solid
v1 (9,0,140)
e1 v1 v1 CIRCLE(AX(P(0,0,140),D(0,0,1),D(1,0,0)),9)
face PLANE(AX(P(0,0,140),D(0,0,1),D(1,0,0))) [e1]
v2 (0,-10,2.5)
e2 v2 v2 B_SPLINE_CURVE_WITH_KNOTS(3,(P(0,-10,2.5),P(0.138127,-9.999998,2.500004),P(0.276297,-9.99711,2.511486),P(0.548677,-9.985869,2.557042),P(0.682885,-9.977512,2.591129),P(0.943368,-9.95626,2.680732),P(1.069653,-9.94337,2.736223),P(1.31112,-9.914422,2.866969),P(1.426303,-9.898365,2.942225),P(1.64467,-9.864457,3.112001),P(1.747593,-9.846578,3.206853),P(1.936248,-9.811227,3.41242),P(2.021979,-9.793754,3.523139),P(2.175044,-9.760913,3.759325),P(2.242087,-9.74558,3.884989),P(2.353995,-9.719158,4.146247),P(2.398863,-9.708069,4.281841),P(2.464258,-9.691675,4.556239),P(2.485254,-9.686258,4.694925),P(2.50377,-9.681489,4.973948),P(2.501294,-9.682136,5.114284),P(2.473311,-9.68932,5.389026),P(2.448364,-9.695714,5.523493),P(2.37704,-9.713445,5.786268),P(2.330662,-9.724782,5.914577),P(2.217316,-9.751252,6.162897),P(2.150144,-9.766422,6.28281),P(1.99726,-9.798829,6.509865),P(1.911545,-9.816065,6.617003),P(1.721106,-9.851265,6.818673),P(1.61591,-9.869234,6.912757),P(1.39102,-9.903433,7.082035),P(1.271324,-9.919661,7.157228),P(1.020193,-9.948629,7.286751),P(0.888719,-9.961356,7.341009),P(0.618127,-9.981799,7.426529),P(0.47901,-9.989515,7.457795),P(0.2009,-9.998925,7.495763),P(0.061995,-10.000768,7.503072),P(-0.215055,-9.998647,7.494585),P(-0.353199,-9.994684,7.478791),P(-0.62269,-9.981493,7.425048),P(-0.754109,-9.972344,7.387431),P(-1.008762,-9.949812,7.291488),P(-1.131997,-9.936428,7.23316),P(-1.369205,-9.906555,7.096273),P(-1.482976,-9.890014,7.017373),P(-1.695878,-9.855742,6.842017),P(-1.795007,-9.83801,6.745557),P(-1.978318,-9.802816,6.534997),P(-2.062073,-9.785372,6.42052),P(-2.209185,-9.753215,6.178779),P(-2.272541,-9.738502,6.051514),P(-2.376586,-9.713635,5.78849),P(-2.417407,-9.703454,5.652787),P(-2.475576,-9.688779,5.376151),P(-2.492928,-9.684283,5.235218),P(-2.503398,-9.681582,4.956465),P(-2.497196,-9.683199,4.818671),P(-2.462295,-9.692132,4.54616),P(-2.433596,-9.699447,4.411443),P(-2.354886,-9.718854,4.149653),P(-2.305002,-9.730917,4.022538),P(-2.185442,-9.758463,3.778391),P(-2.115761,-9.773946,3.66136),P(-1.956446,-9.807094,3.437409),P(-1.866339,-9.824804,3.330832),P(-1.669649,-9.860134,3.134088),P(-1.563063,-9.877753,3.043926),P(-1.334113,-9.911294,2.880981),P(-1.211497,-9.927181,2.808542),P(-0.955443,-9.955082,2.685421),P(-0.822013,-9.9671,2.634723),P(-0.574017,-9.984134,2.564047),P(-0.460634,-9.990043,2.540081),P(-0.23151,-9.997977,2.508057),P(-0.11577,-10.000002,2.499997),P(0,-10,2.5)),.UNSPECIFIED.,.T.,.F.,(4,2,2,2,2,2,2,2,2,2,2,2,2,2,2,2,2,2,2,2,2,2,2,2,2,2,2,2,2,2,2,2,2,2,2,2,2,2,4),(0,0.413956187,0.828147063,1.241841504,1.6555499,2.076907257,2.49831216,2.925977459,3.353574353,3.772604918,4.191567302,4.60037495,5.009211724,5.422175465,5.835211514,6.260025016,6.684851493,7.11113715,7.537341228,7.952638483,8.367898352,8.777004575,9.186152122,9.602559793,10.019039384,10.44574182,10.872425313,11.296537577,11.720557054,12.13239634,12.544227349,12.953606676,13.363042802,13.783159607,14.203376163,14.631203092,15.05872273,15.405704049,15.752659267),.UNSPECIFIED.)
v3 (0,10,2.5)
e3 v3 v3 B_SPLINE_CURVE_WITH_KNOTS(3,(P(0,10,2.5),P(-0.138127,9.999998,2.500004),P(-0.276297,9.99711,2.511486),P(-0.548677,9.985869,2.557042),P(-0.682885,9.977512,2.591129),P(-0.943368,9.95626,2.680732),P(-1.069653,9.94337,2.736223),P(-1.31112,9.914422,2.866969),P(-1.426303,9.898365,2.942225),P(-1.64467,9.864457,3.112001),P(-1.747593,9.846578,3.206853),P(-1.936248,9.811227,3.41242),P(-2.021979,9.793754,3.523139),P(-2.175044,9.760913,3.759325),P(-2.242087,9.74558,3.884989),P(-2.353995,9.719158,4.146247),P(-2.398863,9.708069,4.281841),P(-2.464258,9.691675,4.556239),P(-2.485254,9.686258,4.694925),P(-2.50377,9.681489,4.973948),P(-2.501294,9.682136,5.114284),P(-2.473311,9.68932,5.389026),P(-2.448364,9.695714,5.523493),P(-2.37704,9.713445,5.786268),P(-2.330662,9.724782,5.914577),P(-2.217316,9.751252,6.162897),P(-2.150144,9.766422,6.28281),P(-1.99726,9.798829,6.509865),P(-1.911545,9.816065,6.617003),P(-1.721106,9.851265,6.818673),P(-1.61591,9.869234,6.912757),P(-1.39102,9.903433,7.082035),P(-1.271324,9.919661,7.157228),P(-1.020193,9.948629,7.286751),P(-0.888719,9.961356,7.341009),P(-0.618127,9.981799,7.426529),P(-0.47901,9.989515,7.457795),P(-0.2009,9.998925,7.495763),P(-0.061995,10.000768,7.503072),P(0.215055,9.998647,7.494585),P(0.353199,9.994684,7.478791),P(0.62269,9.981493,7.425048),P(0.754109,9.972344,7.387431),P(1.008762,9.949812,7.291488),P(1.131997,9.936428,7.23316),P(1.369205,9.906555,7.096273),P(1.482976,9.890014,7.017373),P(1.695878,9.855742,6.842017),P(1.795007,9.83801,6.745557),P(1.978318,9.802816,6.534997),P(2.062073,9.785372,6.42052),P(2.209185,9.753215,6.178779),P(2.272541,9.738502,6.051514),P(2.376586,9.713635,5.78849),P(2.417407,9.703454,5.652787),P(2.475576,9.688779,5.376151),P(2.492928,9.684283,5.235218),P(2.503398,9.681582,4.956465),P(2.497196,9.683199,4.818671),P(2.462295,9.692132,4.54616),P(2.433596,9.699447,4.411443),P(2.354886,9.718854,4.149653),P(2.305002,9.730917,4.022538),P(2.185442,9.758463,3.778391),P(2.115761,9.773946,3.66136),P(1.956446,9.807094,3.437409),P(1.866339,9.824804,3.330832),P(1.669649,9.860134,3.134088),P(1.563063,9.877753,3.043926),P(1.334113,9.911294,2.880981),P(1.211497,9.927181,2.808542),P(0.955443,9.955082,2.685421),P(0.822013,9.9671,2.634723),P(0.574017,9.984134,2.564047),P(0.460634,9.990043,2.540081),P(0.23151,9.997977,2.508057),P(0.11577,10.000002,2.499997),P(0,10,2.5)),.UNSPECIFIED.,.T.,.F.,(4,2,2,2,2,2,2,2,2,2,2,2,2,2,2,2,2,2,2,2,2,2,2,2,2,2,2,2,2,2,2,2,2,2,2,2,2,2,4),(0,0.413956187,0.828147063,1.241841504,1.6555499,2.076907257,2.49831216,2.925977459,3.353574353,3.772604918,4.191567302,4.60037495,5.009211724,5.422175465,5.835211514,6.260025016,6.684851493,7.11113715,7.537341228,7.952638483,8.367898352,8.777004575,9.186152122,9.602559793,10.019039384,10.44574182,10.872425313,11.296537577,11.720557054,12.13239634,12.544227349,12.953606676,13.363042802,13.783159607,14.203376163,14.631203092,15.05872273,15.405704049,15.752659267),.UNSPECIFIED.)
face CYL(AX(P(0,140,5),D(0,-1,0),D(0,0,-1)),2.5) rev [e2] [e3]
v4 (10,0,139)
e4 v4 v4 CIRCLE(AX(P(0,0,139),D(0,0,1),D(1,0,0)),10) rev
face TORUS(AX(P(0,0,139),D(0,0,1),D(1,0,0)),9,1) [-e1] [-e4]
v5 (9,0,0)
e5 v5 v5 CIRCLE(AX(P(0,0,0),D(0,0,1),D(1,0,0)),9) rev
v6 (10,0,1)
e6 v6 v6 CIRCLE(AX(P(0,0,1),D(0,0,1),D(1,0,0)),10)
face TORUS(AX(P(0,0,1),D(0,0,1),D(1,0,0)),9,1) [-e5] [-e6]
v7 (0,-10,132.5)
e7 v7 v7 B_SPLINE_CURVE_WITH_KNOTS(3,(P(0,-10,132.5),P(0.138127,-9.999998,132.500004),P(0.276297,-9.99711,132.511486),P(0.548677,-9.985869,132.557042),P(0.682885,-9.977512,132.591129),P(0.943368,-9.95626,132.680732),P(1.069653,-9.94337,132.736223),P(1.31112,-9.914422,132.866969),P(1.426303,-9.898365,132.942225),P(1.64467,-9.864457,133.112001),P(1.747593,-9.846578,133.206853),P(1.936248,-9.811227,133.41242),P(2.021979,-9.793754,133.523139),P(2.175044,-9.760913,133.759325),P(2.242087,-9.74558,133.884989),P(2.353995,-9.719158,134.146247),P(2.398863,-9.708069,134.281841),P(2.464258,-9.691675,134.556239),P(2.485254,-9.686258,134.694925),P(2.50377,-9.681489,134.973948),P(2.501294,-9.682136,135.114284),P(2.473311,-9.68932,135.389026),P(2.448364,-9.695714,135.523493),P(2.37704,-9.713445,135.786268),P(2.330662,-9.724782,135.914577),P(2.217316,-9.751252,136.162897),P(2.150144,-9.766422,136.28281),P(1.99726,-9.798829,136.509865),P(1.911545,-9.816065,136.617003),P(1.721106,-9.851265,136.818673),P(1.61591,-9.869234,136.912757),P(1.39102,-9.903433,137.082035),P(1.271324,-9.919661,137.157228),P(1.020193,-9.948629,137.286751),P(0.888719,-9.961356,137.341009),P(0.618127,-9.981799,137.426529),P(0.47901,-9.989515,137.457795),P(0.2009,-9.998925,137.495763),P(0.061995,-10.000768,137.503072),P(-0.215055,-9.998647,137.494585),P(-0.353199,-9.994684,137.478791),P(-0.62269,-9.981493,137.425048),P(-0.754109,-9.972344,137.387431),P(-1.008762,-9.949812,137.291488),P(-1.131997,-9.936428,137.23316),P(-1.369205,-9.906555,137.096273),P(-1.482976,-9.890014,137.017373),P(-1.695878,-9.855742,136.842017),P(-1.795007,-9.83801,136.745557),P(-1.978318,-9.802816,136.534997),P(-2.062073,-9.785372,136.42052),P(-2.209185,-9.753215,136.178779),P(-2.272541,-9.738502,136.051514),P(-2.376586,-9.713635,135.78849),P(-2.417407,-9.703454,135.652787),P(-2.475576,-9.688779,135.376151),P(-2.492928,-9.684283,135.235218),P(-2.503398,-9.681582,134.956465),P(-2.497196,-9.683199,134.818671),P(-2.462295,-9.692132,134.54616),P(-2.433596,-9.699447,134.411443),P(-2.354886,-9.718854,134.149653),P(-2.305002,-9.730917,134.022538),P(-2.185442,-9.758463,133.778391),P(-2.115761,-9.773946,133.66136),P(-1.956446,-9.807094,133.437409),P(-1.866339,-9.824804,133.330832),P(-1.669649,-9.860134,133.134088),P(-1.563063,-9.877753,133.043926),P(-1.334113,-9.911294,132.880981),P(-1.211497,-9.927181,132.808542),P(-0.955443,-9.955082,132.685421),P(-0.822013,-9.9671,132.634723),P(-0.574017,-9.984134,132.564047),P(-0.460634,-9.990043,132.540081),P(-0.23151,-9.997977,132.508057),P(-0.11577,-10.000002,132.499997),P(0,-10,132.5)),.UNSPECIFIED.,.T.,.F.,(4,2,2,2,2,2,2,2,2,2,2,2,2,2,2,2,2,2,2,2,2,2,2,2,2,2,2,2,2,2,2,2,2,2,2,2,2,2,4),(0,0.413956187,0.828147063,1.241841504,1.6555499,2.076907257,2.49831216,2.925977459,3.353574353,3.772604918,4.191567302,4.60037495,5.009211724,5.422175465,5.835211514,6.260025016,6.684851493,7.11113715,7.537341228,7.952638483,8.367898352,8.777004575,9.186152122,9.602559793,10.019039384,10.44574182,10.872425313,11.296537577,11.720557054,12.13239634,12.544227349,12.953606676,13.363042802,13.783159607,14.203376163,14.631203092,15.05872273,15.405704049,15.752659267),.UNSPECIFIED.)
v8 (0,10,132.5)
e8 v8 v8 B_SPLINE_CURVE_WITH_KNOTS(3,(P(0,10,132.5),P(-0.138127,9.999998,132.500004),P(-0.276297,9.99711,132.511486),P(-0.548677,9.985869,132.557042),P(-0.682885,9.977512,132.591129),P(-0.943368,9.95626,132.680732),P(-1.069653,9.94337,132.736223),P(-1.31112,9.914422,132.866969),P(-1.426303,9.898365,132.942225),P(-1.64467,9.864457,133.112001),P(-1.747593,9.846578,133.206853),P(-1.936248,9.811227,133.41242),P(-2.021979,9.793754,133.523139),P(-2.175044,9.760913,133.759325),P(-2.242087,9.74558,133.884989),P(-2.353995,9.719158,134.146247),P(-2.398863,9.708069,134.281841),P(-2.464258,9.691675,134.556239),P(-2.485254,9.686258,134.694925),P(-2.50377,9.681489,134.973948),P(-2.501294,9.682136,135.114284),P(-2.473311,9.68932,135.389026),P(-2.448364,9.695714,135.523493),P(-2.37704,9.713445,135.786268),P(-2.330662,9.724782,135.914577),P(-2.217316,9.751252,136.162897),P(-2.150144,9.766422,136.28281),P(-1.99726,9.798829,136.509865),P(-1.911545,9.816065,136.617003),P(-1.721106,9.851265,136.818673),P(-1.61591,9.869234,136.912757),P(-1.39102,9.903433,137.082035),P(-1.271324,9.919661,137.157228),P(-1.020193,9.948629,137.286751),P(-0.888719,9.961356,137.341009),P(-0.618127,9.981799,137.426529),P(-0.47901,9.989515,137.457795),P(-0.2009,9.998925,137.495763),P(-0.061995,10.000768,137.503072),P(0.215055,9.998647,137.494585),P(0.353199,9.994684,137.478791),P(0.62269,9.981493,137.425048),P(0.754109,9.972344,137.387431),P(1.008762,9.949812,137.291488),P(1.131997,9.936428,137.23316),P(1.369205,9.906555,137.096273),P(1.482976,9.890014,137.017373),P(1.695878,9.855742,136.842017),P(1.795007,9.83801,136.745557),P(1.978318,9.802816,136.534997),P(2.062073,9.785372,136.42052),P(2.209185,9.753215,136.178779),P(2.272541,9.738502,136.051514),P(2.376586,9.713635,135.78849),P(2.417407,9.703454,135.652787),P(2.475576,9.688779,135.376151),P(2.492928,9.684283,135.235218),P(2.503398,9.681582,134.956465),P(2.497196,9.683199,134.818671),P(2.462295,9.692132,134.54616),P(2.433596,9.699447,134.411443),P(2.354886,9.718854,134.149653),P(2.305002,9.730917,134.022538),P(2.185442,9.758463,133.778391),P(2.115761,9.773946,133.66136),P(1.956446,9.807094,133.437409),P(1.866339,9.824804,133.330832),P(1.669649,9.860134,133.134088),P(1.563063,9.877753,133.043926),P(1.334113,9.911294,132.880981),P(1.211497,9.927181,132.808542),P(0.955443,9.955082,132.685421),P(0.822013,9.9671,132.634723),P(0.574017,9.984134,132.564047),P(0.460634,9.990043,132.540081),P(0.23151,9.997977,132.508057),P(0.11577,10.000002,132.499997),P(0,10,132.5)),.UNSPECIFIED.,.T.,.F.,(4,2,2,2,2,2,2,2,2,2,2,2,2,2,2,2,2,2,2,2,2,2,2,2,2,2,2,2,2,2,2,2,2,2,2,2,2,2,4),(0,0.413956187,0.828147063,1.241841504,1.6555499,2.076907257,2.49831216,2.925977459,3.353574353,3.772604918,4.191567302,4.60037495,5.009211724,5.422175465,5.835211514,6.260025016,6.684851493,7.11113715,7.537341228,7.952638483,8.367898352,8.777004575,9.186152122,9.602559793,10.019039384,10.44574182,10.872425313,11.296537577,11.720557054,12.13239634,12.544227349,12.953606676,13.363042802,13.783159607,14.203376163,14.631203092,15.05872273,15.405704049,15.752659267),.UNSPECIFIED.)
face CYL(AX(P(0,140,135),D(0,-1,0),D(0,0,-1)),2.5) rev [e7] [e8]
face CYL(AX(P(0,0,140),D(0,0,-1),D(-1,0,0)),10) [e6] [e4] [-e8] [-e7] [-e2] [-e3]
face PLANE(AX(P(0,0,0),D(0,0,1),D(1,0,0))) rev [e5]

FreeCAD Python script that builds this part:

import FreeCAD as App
import Part
import Sketcher


def edges_at(feature, points):
    """Names of the edges that pass closest to the given points."""
    edges = feature.Shape.Edges
    near = lambda p: min(range(len(edges)), key=lambda i: edges[i].distToShape(Part.Vertex(*p))[0])
    return sorted({f"Edge{near(p) + 1}" for p in points})

doc = App.newDocument("Part")
params = doc.addObject("Spreadsheet::Sheet", "Params")
for row, (alias, value) in enumerate([
    ("sketch1_diameter", "20 mm"),
    ("pad1_length", "140 mm"),
    ("fillet_radius", "1 mm"),
    ("sketch2_diameter", "5 mm"),
], start=1):
    params.set(f"A{row}", alias)
    params.set(f"B{row}", "=" + value)
    params.setAlias(f"B{row}", alias)

body = doc.addObject("PartDesign::Body", "Body")

# Sketch on XY plane
sketch1 = body.newObject("Sketcher::SketchObject", "Sketch")
sketch1.AttachmentSupport = (doc.getObject("XY_Plane"), [""])
sketch1.MapMode = "FlatFace"
sketch1.addGeometry(Part.Circle(App.Vector(0, 0, 0), App.Vector(0, 0, 1), 10), False)
sketch1.addConstraint(Sketcher.Constraint("Coincident", 0, 3, -1, 1))
sketch1.addConstraint(Sketcher.Constraint("Diameter", 0, 20.0))
sketch1.setExpression("Constraints[1]", "Params.sketch1_diameter")
pad1 = body.newObject("PartDesign::Pad", "Pad")
pad1.Profile = sketch1
pad1.setExpression("Length", "Params.pad1_length")
doc.recompute()

fillet = body.newObject("PartDesign::Fillet", "Fillet")
fillet.Base = (pad1, edges_at(pad1, [(-10, 0, 0), (-10, 0, 140)]))
fillet.setExpression("Radius", "Params.fillet_radius")

# Sketch on XZ plane
sketch2 = body.newObject("Sketcher::SketchObject", "Sketch001")
sketch2.AttachmentSupport = (doc.getObject("XZ_Plane"), [""])
sketch2.MapMode = "FlatFace"
sketch2.addGeometry(Part.Circle(App.Vector(0, 5, 0), App.Vector(0, 0, 1), 2.5), False)
sketch2.addGeometry(Part.Circle(App.Vector(0, 135, 0), App.Vector(0, 0, 1), 2.5), False)
sketch2.addConstraint(Sketcher.Constraint("Equal", 0, 1))
sketch2.addConstraint(Sketcher.Constraint("PointOnObject", 0, 3, -2))
sketch2.addConstraint(Sketcher.Constraint("PointOnObject", 1, 3, -2))
sketch2.addConstraint(Sketcher.Constraint("Diameter", 0, 5.0))
sketch2.addConstraint(Sketcher.Constraint("DistanceY", -1, 1, 0, 3, 5.0))
sketch2.addConstraint(Sketcher.Constraint("DistanceY", -1, 1, 1, 3, 135.0))
sketch2.setExpression("Constraints[3]", "Params.sketch2_diameter")
pocket1 = body.newObject("PartDesign::Pocket", "Pocket")
pocket1.Profile = sketch2
pocket1.Type = "ThroughAll"
pocket1.Midplane = True

doc.recompute()
